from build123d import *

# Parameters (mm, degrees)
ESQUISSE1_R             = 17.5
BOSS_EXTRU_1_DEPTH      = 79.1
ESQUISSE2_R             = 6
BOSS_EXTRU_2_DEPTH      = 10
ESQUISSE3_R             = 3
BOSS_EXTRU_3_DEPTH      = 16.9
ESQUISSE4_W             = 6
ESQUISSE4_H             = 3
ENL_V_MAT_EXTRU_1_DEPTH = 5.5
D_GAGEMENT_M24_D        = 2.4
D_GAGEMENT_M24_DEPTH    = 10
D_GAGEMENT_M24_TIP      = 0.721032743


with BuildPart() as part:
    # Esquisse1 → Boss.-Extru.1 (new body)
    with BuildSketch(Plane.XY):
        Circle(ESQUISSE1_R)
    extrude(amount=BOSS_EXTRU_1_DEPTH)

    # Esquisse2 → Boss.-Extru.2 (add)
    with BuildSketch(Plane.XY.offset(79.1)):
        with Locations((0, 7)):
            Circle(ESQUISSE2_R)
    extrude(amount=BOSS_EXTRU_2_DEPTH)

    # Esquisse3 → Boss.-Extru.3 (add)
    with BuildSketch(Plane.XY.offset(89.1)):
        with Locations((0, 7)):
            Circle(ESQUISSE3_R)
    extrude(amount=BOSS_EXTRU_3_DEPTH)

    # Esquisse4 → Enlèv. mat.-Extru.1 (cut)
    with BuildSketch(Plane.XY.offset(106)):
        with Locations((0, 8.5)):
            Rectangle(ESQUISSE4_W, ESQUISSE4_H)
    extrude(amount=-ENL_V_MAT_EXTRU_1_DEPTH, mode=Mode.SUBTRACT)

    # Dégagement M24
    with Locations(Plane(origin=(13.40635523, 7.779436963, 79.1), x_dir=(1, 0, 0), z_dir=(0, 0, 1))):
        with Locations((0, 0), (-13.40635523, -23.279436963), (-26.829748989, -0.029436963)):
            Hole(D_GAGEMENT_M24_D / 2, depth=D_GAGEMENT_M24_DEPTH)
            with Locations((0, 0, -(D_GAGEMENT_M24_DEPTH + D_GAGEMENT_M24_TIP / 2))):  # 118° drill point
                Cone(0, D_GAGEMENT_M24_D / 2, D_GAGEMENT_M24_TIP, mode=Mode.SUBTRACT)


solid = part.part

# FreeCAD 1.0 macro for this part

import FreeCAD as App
import Part
import Sketcher
Q = App.Units.Quantity


def add_polygon(sketch, points):
    """Adds a closed chain of lines whose ends are joined by coincident constraints."""
    first, n = sketch.GeometryCount, len(points)
    for a, b in zip(points, points[1:] + points[:1]):
        sketch.addGeometry(Part.LineSegment(App.Vector(*a, 0), App.Vector(*b, 0)), False)
    for i in range(n):
        sketch.addConstraint(Sketcher.Constraint("Coincident", first + i, 2, first + (i + 1) % n, 1))

doc = App.newDocument("Part")
body = doc.addObject("PartDesign::Body", "Body")

# Sketch on XY plane
sketch1 = body.newObject("Sketcher::SketchObject", "Sketch")
sketch1.AttachmentSupport = (doc.getObject("XY_Plane"), [""])
sketch1.MapMode = "FlatFace"
sketch1.addGeometry(Part.Circle(App.Vector(0, 0, 0), App.Vector(0, 0, 1), 18), False)
sketch1.addConstraint(Sketcher.Constraint("Coincident", 0, 3, -1, 1))
sketch1.addConstraint(Sketcher.Constraint("Diameter", 0, Q("35 mm")))
pad1 = body.newObject("PartDesign::Pad", "Pad")
pad1.Profile = sketch1
pad1.Length = 79.1

# Sketch on XY plane
sketch2 = body.newObject("Sketcher::SketchObject", "Sketch001")
sketch2.AttachmentSupport = (doc.getObject("XY_Plane"), [""])
sketch2.MapMode = "FlatFace"
sketch2.AttachmentOffset = App.Placement(App.Vector(0, 0, 79.1), App.Rotation())
sketch2.addGeometry(Part.Circle(App.Vector(0, 7, 0), App.Vector(0, 0, 1), 6), False)
sketch2.addConstraint(Sketcher.Constraint("PointOnObject", 0, 3, -2))
sketch2.addConstraint(Sketcher.Constraint("Diameter", 0, Q("12 mm")))
sketch2.addConstraint(Sketcher.Constraint("DistanceY", -1, 1, 0, 3, Q("7 mm")))
pad2 = body.newObject("PartDesign::Pad", "Pad001")
pad2.Profile = sketch2
pad2.Length = 10

# Sketch on XY plane
sketch3 = body.newObject("Sketcher::SketchObject", "Sketch002")
sketch3.AttachmentSupport = (doc.getObject("XY_Plane"), [""])
sketch3.MapMode = "FlatFace"
sketch3.AttachmentOffset = App.Placement(App.Vector(0, 0, 89.1), App.Rotation())
sketch3.addGeometry(Part.Circle(App.Vector(0, 7, 0), App.Vector(0, 0, 1), 3), False)
sketch3.addConstraint(Sketcher.Constraint("PointOnObject", 0, 3, -2))
sketch3.addConstraint(Sketcher.Constraint("Diameter", 0, Q("6 mm")))
sketch3.addConstraint(Sketcher.Constraint("DistanceY", -1, 1, 0, 3, Q("7 mm")))
pad3 = body.newObject("PartDesign::Pad", "Pad002")
pad3.Profile = sketch3
pad3.Length = 16.9

# Sketch on XY plane
sketch4 = body.newObject("Sketcher::SketchObject", "Sketch003")
sketch4.AttachmentSupport = (doc.getObject("XY_Plane"), [""])
sketch4.MapMode = "FlatFace"
sketch4.AttachmentOffset = App.Placement(App.Vector(0, 0, 106), App.Rotation())
add_polygon(sketch4, [(-3, 10), (-3, 7), (3, 7), (3, 10)])  # lines 0-3
sketch4.addConstraint(Sketcher.Constraint("Vertical", 0))
sketch4.addConstraint(Sketcher.Constraint("Horizontal", 1))
sketch4.addConstraint(Sketcher.Constraint("Vertical", 2))
sketch4.addConstraint(Sketcher.Constraint("Horizontal", 3))
sketch4.addConstraint(Sketcher.Constraint("DistanceX", 1, 1, 1, 2, Q("6 mm")))
sketch4.addConstraint(Sketcher.Constraint("DistanceY", 0, 2, 0, 1, Q("3 mm")))
sketch4.addConstraint(Sketcher.Constraint("DistanceX", 0, 2, -1, 1, Q("3 mm")))
sketch4.addConstraint(Sketcher.Constraint("DistanceY", -1, 1, 0, 2, Q("7 mm")))
pocket1 = body.newObject("PartDesign::Pocket", "Pocket")
pocket1.Profile = sketch4
pocket1.Length = 5.5

# Sketch on XY plane
sketch5 = body.newObject("Sketcher::SketchObject", "Sketch004")
sketch5.AttachmentSupport = (doc.getObject("XY_Plane"), [""])
sketch5.MapMode = "FlatFace"
sketch5.AttachmentOffset = App.Placement(App.Vector(0, 0, 79.1), App.Rotation())
sketch5.addGeometry(Part.Circle(App.Vector(13.4, 7.8, 0), App.Vector(0, 0, 1), 1.2), False)
sketch5.addGeometry(Part.Circle(App.Vector(0, -15.5, 0), App.Vector(0, 0, 1), 1.2), False)
sketch5.addGeometry(Part.Circle(App.Vector(-13.4, 7.8, 0), App.Vector(0, 0, 1), 1.2), False)
sketch5.addConstraint(Sketcher.Constraint("Equal", 0, 1))
sketch5.addConstraint(Sketcher.Constraint("Equal", 1, 2))
sketch5.addConstraint(Sketcher.Constraint("PointOnObject", 1, 3, -2))
sketch5.addConstraint(Sketcher.Constraint("Diameter", 0, Q("2.4 mm")))
sketch5.addConstraint(Sketcher.Constraint("DistanceY", 1, 3, -1, 1, Q("15.5 mm")))
sketch5.addConstraint(Sketcher.Constraint("DistanceY", -1, 1, 2, 3, Q("7.75 mm")))
sketch5.addConstraint(Sketcher.Constraint("DistanceX", 2, 3, 0, 3, Q("26.829749 mm")))
sketch5.addConstraint(Sketcher.Constraint("DistanceX", -1, 1, 0, 3, Q("13.406355 mm")))
sketch5.addConstraint(Sketcher.Constraint("DistanceY", -1, 1, 0, 3, Q("7.779437 mm")))
doc.recompute()
hole = body.newObject("PartDesign::Hole", "Hole")
hole.Profile = sketch5
hole.ThreadType = "None"
hole.Diameter = 2.4
hole.DepthType = "Dimension"
hole.Depth = 10
hole.DrillPoint = "Angled"
hole.DrillPointAngle = 118

doc.recompute()
